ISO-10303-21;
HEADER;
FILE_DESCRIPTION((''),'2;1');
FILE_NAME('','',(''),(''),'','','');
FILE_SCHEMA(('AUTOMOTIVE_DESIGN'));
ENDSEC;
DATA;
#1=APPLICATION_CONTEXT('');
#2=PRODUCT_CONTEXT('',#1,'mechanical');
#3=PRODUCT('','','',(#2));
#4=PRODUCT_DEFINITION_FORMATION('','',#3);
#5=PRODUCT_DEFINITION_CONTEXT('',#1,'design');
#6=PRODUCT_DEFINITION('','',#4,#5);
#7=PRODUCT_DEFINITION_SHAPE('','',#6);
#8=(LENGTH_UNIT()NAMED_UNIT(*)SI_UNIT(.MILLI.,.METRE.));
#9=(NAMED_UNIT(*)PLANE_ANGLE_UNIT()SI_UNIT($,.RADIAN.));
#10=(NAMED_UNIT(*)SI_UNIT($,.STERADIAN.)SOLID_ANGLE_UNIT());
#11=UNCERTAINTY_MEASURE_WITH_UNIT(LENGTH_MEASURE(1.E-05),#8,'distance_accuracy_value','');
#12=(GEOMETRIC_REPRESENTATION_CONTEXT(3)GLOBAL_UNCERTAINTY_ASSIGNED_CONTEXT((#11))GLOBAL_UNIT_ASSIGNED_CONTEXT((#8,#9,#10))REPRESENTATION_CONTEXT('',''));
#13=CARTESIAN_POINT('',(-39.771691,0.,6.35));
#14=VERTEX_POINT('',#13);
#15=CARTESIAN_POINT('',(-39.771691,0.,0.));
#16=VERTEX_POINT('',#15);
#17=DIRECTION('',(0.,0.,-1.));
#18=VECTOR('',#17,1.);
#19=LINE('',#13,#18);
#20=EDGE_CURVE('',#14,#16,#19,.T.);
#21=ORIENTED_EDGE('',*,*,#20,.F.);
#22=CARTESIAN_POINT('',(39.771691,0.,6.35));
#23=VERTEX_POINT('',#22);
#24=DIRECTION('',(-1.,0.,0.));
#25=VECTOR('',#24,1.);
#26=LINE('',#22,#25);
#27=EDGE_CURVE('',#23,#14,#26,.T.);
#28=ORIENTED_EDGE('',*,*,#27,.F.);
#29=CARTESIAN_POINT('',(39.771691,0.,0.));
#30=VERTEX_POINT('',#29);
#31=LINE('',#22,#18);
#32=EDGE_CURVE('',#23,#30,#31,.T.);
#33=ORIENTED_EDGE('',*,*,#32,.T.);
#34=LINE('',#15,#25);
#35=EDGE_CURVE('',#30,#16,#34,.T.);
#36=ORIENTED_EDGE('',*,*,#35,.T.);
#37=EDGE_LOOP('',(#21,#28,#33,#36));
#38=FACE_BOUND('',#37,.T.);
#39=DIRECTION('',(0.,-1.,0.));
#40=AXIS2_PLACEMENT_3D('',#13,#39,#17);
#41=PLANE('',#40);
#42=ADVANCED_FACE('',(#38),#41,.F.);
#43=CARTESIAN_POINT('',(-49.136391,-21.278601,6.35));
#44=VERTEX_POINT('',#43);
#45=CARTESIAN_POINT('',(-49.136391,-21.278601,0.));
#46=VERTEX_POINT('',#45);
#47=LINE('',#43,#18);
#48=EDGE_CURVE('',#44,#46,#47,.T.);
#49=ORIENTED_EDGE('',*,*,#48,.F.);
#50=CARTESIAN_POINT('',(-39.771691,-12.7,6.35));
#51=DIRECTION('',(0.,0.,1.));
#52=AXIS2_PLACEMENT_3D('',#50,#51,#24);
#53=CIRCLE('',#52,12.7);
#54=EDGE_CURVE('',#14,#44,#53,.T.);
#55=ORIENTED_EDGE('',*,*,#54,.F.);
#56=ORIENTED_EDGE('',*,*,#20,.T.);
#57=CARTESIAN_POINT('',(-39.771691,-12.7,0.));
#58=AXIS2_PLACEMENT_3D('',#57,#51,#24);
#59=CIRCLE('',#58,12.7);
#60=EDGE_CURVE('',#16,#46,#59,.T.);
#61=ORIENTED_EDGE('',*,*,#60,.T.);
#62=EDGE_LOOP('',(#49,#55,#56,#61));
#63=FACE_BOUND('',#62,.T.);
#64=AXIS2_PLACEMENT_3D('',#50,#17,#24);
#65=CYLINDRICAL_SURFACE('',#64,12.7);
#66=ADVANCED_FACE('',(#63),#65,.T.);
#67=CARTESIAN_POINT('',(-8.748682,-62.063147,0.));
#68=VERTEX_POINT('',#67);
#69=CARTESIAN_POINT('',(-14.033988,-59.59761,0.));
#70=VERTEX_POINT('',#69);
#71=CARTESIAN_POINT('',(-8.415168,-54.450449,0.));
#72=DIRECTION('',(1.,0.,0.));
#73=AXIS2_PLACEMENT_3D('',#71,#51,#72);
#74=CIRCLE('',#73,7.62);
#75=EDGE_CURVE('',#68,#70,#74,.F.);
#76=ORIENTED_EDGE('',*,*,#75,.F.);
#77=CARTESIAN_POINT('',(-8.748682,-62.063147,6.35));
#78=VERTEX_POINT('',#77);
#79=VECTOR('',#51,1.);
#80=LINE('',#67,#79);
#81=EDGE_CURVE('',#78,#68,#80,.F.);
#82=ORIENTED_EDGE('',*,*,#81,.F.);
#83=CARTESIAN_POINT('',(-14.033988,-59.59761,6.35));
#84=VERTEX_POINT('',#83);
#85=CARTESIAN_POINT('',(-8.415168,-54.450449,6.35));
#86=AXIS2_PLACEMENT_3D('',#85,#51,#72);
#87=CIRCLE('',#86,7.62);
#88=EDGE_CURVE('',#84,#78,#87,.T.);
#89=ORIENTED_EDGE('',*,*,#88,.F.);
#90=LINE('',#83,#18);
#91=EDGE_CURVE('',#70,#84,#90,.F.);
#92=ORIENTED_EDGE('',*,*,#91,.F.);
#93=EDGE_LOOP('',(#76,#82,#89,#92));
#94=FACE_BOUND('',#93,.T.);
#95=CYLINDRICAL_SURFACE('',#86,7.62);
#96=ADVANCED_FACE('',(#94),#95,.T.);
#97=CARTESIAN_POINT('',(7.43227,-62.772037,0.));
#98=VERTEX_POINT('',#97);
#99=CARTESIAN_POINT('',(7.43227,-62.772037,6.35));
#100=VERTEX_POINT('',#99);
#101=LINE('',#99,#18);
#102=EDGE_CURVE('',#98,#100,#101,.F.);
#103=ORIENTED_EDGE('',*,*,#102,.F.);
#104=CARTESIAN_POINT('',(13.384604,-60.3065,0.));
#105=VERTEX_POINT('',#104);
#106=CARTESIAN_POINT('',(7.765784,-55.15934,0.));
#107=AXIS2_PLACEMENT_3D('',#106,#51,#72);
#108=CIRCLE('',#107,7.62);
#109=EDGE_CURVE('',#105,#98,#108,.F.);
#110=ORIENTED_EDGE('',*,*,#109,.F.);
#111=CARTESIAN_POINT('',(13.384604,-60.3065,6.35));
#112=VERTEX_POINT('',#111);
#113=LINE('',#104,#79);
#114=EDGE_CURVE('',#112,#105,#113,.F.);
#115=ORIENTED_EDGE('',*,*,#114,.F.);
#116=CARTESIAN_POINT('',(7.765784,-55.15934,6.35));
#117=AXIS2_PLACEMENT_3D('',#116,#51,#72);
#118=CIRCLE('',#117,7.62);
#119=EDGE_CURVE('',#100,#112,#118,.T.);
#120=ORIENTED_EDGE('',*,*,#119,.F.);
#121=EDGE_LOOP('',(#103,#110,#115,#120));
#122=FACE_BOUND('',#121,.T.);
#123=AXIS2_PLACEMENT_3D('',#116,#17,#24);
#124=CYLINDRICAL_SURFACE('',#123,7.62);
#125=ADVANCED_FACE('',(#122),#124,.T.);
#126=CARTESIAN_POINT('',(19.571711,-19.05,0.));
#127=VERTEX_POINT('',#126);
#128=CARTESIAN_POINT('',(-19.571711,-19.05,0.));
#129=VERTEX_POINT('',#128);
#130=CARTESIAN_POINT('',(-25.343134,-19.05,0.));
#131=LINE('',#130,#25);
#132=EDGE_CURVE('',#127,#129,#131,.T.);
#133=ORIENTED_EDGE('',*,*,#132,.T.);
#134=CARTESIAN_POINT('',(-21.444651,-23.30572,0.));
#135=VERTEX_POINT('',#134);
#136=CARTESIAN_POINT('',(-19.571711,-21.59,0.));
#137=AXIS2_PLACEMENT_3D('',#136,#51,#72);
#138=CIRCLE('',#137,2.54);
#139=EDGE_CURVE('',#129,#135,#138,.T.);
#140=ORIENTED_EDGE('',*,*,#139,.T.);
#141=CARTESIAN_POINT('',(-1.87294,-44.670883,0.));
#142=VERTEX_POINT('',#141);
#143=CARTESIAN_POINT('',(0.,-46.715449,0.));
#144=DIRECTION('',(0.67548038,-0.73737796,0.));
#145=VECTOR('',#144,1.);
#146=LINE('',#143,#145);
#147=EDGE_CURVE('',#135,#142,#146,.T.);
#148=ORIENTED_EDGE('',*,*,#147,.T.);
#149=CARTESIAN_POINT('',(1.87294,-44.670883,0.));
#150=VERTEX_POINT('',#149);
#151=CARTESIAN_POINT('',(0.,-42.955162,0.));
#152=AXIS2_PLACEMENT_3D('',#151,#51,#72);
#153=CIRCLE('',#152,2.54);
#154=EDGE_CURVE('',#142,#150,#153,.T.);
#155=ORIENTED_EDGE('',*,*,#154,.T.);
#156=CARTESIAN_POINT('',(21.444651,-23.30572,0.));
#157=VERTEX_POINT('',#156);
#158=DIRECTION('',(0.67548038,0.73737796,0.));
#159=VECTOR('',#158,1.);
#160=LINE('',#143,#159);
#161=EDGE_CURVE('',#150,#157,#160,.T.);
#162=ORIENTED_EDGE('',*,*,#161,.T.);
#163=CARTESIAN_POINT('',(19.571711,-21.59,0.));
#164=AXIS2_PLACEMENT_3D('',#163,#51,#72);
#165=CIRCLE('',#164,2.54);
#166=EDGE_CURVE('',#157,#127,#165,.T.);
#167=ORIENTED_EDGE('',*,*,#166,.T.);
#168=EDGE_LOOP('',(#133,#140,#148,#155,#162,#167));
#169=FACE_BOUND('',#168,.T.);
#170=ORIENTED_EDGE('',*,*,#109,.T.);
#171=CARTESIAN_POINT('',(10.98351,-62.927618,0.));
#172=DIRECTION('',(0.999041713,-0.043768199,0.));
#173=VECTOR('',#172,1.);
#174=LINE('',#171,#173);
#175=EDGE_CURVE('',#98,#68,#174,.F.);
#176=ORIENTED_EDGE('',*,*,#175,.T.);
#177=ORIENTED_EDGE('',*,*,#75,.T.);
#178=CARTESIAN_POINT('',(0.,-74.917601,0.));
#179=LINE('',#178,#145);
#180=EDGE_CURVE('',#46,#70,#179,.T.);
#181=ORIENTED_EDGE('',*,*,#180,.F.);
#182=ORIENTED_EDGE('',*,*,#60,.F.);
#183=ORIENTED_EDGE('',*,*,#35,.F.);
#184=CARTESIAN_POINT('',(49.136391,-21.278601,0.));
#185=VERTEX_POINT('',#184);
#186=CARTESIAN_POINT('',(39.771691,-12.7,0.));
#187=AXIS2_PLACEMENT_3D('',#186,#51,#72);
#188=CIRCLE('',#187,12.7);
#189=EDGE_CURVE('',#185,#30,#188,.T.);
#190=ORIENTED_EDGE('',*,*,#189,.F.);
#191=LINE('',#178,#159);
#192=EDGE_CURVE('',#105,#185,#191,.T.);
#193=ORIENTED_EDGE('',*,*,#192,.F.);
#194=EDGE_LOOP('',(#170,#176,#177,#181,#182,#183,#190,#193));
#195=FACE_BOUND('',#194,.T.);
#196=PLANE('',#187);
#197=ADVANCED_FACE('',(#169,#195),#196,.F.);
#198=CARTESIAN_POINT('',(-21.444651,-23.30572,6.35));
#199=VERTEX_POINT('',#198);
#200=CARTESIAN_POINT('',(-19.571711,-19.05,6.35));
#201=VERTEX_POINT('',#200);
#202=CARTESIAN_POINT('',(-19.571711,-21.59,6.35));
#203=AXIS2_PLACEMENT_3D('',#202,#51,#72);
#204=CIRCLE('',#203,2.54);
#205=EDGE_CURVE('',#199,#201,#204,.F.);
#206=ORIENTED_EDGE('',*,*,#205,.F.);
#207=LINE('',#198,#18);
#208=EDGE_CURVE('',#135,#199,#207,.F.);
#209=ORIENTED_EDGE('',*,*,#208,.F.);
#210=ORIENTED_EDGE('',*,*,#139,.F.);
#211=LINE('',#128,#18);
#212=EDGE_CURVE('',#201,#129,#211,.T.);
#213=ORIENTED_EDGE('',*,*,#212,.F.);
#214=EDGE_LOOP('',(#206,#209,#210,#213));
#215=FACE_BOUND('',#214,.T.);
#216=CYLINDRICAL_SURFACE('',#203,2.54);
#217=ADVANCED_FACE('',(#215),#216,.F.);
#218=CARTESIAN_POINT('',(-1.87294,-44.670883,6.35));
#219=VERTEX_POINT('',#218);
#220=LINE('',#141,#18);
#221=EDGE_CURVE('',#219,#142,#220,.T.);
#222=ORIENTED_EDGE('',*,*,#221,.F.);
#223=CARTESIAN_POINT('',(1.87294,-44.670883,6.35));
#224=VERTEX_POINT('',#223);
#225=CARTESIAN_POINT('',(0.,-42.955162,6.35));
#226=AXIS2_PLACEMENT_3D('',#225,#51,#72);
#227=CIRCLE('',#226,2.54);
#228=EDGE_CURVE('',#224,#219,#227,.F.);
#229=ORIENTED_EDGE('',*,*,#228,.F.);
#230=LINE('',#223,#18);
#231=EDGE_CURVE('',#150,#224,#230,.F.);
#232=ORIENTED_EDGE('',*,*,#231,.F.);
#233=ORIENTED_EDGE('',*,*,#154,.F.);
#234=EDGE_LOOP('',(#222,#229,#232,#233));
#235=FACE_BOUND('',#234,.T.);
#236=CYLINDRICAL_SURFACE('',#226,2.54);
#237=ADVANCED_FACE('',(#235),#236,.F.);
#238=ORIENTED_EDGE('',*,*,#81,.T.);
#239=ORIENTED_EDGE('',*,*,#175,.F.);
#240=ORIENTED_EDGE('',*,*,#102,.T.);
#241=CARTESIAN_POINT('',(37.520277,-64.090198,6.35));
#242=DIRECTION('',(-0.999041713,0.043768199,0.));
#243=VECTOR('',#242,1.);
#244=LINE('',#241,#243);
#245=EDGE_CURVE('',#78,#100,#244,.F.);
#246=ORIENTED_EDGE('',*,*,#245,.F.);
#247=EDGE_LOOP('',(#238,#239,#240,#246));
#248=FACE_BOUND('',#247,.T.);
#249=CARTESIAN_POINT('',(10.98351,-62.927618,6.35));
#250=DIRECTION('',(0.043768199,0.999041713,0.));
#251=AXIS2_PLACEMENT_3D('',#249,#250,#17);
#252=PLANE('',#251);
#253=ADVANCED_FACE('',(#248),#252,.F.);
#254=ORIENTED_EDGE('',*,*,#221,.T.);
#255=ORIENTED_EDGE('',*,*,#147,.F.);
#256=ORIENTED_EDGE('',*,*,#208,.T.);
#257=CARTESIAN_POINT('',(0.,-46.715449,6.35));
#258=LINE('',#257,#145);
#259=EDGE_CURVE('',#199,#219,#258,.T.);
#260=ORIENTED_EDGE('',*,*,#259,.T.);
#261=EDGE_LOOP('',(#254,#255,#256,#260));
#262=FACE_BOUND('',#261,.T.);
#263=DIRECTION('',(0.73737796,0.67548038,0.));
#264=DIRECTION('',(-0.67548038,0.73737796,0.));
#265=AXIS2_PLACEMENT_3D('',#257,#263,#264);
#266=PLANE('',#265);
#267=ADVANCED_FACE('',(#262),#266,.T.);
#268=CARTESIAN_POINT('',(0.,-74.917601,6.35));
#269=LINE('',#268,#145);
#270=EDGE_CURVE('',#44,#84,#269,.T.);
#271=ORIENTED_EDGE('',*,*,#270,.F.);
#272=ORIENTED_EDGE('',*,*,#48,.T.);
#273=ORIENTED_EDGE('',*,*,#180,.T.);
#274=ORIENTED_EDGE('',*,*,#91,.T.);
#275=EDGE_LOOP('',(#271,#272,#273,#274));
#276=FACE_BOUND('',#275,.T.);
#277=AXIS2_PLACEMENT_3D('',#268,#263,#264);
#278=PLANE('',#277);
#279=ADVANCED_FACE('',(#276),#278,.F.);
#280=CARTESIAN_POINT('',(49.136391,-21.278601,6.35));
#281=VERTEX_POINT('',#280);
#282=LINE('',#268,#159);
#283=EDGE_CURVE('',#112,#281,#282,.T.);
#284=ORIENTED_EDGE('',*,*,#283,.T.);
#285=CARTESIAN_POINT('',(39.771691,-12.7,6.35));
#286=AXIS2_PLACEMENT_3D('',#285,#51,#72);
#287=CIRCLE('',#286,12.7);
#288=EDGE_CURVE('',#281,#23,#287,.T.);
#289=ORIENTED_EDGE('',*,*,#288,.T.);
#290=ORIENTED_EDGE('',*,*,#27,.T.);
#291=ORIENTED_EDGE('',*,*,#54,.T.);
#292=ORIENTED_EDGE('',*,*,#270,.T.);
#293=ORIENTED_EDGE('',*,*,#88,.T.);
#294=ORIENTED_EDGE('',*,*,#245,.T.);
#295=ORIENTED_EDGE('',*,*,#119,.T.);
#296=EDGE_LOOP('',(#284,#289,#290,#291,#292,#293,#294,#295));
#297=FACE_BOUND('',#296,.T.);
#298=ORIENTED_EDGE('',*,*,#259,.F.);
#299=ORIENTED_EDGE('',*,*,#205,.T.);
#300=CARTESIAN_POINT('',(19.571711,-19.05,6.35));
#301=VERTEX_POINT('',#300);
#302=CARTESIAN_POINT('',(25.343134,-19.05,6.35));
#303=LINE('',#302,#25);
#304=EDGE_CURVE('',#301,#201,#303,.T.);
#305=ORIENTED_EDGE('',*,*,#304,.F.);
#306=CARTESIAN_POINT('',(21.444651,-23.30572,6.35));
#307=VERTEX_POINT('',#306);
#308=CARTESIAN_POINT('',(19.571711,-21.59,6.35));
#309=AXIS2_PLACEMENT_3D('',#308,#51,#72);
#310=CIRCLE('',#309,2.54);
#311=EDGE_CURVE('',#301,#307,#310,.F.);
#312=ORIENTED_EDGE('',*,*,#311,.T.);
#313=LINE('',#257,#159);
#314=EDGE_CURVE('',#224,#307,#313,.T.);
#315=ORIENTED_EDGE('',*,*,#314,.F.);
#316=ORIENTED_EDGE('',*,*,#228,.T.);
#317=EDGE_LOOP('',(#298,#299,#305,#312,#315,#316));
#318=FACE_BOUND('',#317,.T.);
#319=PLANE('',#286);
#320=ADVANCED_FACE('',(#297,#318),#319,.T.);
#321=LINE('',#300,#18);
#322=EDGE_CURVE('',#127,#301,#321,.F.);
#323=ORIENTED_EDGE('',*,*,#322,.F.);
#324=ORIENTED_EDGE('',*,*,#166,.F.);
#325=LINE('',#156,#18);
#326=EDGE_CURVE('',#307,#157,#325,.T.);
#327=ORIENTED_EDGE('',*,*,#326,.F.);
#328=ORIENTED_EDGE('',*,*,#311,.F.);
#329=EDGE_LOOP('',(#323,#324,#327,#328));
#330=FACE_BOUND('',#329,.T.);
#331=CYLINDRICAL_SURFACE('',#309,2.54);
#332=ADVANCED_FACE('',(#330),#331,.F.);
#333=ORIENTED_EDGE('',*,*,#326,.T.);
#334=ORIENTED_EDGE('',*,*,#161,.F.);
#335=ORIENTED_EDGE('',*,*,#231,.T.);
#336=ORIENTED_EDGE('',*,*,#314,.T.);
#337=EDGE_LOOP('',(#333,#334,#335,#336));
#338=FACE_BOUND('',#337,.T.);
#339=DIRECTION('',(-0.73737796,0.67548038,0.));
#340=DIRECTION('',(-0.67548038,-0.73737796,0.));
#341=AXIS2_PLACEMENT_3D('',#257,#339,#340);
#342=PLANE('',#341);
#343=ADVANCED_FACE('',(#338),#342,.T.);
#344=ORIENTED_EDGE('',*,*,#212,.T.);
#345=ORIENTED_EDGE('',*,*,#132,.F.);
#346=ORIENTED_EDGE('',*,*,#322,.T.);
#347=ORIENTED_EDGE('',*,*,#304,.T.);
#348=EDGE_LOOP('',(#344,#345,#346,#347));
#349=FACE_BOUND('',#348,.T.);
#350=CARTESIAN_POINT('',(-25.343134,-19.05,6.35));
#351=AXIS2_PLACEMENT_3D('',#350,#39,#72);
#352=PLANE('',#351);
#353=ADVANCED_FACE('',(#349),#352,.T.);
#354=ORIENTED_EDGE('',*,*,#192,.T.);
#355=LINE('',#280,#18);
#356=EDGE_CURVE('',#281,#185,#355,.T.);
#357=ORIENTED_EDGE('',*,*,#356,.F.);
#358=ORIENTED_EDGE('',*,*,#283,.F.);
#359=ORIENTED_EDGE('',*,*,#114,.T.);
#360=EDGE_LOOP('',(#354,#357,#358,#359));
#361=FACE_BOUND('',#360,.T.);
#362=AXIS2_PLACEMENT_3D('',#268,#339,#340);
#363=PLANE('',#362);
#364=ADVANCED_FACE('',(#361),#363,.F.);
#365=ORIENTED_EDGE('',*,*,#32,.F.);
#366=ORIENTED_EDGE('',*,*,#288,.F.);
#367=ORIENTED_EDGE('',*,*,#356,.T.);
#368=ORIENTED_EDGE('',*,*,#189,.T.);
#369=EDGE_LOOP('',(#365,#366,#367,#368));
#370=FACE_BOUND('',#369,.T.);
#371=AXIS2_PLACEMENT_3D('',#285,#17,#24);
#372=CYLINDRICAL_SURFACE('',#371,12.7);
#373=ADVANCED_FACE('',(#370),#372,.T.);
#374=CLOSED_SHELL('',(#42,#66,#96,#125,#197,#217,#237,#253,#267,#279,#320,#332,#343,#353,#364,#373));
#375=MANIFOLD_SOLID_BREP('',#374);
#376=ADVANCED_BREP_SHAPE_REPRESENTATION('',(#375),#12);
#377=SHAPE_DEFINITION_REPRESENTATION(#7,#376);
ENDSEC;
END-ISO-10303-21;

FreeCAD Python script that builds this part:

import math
import FreeCAD as App
import Part
import Sketcher

V = App.Vector
Q = App.Units.Quantity


def edges_at(feature, points):
    """Names of the edges that pass closest to the given points."""
    edges = feature.Shape.Edges
    near = lambda p: min(range(len(edges)), key=lambda i: edges[i].distToShape(Part.Vertex(*p))[0])
    return sorted({f"Edge{near(p) + 1}" for p in points})

doc = App.newDocument("Part")
body = doc.addObject("PartDesign::Body", "Body")

# Sketch on XY plane
sketch1 = body.newObject("Sketcher::SketchObject", "Sketch")
sketch1.AttachmentSupport = (doc.getObject("XY_Plane"), [""])
sketch1.MapMode = "FlatFace"
sketch1.addGeometry([
    Part.LineSegment(V(-49, -21, 0), V(0, -75, 0)),  # 0
    Part.LineSegment(V(0, -75, 0), V(49, -21, 0)),  # 1
    Part.ArcOfCircle(Part.Circle(V(40, -13, 0), V(0, 0, 1), 13), math.radians(-42), math.radians(90)),  # 2
    Part.LineSegment(V(40, 0, 0), V(-40, 0, 0)),  # 3
    Part.ArcOfCircle(Part.Circle(V(-40, -13, 0), V(0, 0, 1), 13), math.radians(90), math.radians(222)),  # 4
    Part.LineSegment(V(0, -47, 0), V(-25, -19, 0)),  # 5
    Part.LineSegment(V(-25, -19, 0), V(25, -19, 0)),  # 6
    Part.LineSegment(V(25, -19, 0), V(0, -47, 0)),  # 7
], False)
sketch1.addConstraint([
    Sketcher.Constraint("Coincident", 0, 2, 1, 1),
    Sketcher.Constraint("Tangent", 1, 2, 2, 1),
    Sketcher.Constraint("Tangent", 2, 2, 3, 1),
    Sketcher.Constraint("Tangent", 3, 2, 4, 1),
    Sketcher.Constraint("Tangent", 4, 2, 0, 1),
    Sketcher.Constraint("Coincident", 5, 2, 6, 1),
    Sketcher.Constraint("Coincident", 6, 2, 7, 1),
    Sketcher.Constraint("Coincident", 7, 2, 5, 1),
    Sketcher.Constraint("Horizontal", 3),
    Sketcher.Constraint("Horizontal", 6),
    Sketcher.Constraint("Equal", 2, 4),
    Sketcher.Constraint("Symmetric", 2, 2, 3, 2, -1, 1),
    Sketcher.Constraint("PointOnObject", 0, 2, -2),
    Sketcher.Constraint("PointOnObject", 7, 2, -2),
    Sketcher.Constraint("Parallel", 0, 5),
    Sketcher.Constraint("Parallel", 1, 7),
    Sketcher.Constraint("Radius", 2, Q("0.5 in")),
    Sketcher.Constraint("DistanceY", 5, 2, -1, 1, Q("0.75 in")),
    Sketcher.Constraint("DistanceY", 0, 2, -1, 1, Q("74.917601 mm")),
    Sketcher.Constraint("DistanceY", 1, 2, -1, 1, Q("21.278601 mm")),
    Sketcher.Constraint("DistanceX", 6, 1, 6, 2, Q("50.686267 mm")),
])
pad1 = body.newObject("PartDesign::Pad", "Pad")
pad1.Profile = sketch1
pad1.Length = Q("0.25 in")
doc.recompute()

chamfer = body.newObject("PartDesign::Chamfer", "Chamfer")
chamfer.Base = (pad1, edges_at(pad1, [(0, -74.918, 3.175)]))
chamfer.ChamferType = "Two distances"
chamfer.Size = 17.62
chamfer.Size2 = 16.260295
doc.recompute()

fillet = body.newObject("PartDesign::Fillet", "Fillet")
fillet.Base = (chamfer, edges_at(chamfer, [(-25.343, -19.05, 3.175), (0, -46.715, 3.175), (25.343, -19.05, 3.175)]))
fillet.Radius = Q("0.1 in")
doc.recompute()

fillet2 = body.newObject("PartDesign::Fillet", "Fillet001")
fillet2.Base = (fillet, edges_at(fillet, [(10.984, -62.928, 3.175), (-11.902, -61.925, 3.175)]))
fillet2.Radius = Q("0.3 in")

doc.recompute()
